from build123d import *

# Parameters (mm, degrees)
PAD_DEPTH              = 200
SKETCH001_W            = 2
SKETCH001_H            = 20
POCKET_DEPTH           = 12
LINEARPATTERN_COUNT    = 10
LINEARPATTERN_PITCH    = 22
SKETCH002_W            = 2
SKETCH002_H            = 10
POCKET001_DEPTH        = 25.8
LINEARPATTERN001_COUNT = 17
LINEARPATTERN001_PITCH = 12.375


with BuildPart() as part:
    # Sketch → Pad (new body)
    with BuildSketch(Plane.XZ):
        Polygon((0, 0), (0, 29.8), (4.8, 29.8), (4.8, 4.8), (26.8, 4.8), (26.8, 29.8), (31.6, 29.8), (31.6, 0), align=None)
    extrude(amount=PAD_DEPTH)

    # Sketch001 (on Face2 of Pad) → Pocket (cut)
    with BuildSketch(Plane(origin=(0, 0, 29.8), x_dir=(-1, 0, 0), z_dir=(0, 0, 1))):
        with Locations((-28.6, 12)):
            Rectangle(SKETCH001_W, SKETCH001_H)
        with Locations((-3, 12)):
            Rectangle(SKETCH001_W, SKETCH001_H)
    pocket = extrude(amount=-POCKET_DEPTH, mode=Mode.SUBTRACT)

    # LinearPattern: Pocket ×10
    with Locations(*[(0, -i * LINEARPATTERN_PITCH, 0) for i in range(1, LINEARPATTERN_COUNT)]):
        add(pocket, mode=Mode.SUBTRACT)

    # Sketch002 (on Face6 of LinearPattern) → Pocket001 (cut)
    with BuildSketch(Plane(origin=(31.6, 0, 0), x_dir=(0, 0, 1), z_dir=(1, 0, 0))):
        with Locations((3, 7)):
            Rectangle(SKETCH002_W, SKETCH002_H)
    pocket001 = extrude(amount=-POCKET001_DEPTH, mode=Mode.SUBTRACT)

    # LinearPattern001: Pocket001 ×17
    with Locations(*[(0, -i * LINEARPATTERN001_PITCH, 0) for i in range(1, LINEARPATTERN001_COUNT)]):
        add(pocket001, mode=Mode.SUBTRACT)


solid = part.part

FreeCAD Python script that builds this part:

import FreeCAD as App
import Part
import Sketcher

V = App.Vector


def add_polygon(sketch, points):
    """Adds a closed chain of lines whose ends are joined by coincident constraints."""
    first, n = sketch.GeometryCount, len(points)
    for a, b in zip(points, points[1:] + points[:1]):
        sketch.addGeometry(Part.LineSegment(App.Vector(*a, 0), App.Vector(*b, 0)), False)
    for i in range(n):
        sketch.addConstraint(Sketcher.Constraint("Coincident", first + i, 2, first + (i + 1) % n, 1))

doc = App.newDocument("Part")
body = doc.addObject("PartDesign::Body", "Body")

sketch1 = doc.addObject("Sketcher::SketchObject", "Sketch")
body.addObject(sketch1)
sketch1.AttachmentSupport = (doc.XZ_Plane, [""])
sketch1.MapMode = "FlatFace"
add_polygon(sketch1, [(0, 29.8), (0, 0), (31.6, 0), (31.6, 29.8), (26.8, 29.8), (26.8, 4.8), (4.8, 4.8), (4.8, 29.8)])
sketch1.addConstraint([
    Sketcher.Constraint("Vertical", 0),
    Sketcher.Constraint("Horizontal", 1),
    Sketcher.Constraint("Vertical", 2),
    Sketcher.Constraint("Horizontal", 3),
    Sketcher.Constraint("Vertical", 4),
    Sketcher.Constraint("Horizontal", 5),
    Sketcher.Constraint("Vertical", 6),
    Sketcher.Constraint("Horizontal", 7),
    Sketcher.Constraint("Coincident", 0, 2, -1, 1),
    Sketcher.Constraint("Horizontal", 3, 2, 6, 2),
    Sketcher.Constraint("Equal", 3, 7),
    Sketcher.Constraint("DistanceX", 5, 2, 5, 1, 22.0),
    Sketcher.Constraint("DistanceY", 4, 2, 4, 1, 25.0),
    Sketcher.Constraint("DistanceX", 1, 1, 1, 2, 31.6),
    Sketcher.Constraint("DistanceY", 0, 2, 0, 1, 29.8),
])
pad1 = doc.addObject("PartDesign::Pad", "Pad")
body.addObject(pad1)
pad1.Profile = sketch1
pad1.Length = 200

sketch2 = doc.addObject("Sketcher::SketchObject", "Sketch001")
body.addObject(sketch2)
sketch2.AttachmentSupport = (doc.XY_Plane, [""])
sketch2.MapMode = "FlatFace"
sketch2.AttachmentOffset = App.Placement(V(0, 0, 29.8), App.Rotation())
add_polygon(sketch2, [(29.6, -22), (29.6, -2), (27.6, -2), (27.6, -22)])
add_polygon(sketch2, [(4, -22), (4, -2), (2, -2), (2, -22)])
sketch2.addConstraint([
    Sketcher.Constraint("Vertical", 0),
    Sketcher.Constraint("Horizontal", 1),
    Sketcher.Constraint("Vertical", 2),
    Sketcher.Constraint("Horizontal", 3),
    Sketcher.Constraint("Vertical", 4),
    Sketcher.Constraint("Horizontal", 5),
    Sketcher.Constraint("Vertical", 6),
    Sketcher.Constraint("Horizontal", 7),
    Sketcher.Constraint("Horizontal", 1, 2, 4, 2),
    Sketcher.Constraint("Horizontal", 3, 2, 6, 2),
    Sketcher.Constraint("Equal", 3, 5),
    Sketcher.Constraint("DistanceX", 1, 2, 1, 1, 2.0),
    Sketcher.Constraint("DistanceY", 0, 1, 0, 2, 20.0),
    Sketcher.Constraint("DistanceY", 0, 2, -1, 1, 2.0),
    Sketcher.Constraint("DistanceX", -1, 1, 4, 2, 4.0),
    Sketcher.Constraint("DistanceX", -1, 1, 0, 2, 29.6),
])
pocket1 = doc.addObject("PartDesign::Pocket", "Pocket")
body.addObject(pocket1)
pocket1.Profile = sketch2
pocket1.Length = 12
doc.recompute()

linearpattern = doc.addObject("PartDesign::LinearPattern", "LinearPattern")
body.addObject(linearpattern)
linearpattern.Originals = [pocket1]
linearpattern.Direction = (doc.Y_Axis, [""])
linearpattern.Mode = "offset"
linearpattern.Offset = 22
linearpattern.Occurrences = 10
linearpattern.Reversed = True
body.Tip = linearpattern

sketch3 = doc.addObject("Sketcher::SketchObject", "Sketch002")
body.addObject(sketch3)
sketch3.AttachmentSupport = (doc.YZ_Plane, [""])
sketch3.MapMode = "FlatFace"
sketch3.AttachmentOffset = App.Placement(V(0, 0, 31.6), App.Rotation())
add_polygon(sketch3, [(-12, 2), (-2, 2), (-2, 4), (-12, 4)])
sketch3.addConstraint([
    Sketcher.Constraint("Horizontal", 0),
    Sketcher.Constraint("Vertical", 1),
    Sketcher.Constraint("Horizontal", 2),
    Sketcher.Constraint("Vertical", 3),
    Sketcher.Constraint("DistanceX", 0, 1, 0, 2, 10.0),
    Sketcher.Constraint("DistanceY", 1, 1, 1, 2, 2.0),
    Sketcher.Constraint("DistanceX", 0, 2, -1, 1, 2.0),
    Sketcher.Constraint("DistanceY", -1, 1, 0, 2, 2.0),
])
pocket2 = doc.addObject("PartDesign::Pocket", "Pocket001")
body.addObject(pocket2)
pocket2.Profile = sketch3
pocket2.Length = 25.8
doc.recompute()

linearpattern2 = doc.addObject("PartDesign::LinearPattern", "LinearPattern001")
body.addObject(linearpattern2)
linearpattern2.Originals = [pocket2]
linearpattern2.Direction = (doc.Y_Axis, [""])
linearpattern2.Mode = "offset"
linearpattern2.Offset = 12.375
linearpattern2.Occurrences = 17
linearpattern2.Reversed = True
body.Tip = linearpattern2

doc.recompute()
